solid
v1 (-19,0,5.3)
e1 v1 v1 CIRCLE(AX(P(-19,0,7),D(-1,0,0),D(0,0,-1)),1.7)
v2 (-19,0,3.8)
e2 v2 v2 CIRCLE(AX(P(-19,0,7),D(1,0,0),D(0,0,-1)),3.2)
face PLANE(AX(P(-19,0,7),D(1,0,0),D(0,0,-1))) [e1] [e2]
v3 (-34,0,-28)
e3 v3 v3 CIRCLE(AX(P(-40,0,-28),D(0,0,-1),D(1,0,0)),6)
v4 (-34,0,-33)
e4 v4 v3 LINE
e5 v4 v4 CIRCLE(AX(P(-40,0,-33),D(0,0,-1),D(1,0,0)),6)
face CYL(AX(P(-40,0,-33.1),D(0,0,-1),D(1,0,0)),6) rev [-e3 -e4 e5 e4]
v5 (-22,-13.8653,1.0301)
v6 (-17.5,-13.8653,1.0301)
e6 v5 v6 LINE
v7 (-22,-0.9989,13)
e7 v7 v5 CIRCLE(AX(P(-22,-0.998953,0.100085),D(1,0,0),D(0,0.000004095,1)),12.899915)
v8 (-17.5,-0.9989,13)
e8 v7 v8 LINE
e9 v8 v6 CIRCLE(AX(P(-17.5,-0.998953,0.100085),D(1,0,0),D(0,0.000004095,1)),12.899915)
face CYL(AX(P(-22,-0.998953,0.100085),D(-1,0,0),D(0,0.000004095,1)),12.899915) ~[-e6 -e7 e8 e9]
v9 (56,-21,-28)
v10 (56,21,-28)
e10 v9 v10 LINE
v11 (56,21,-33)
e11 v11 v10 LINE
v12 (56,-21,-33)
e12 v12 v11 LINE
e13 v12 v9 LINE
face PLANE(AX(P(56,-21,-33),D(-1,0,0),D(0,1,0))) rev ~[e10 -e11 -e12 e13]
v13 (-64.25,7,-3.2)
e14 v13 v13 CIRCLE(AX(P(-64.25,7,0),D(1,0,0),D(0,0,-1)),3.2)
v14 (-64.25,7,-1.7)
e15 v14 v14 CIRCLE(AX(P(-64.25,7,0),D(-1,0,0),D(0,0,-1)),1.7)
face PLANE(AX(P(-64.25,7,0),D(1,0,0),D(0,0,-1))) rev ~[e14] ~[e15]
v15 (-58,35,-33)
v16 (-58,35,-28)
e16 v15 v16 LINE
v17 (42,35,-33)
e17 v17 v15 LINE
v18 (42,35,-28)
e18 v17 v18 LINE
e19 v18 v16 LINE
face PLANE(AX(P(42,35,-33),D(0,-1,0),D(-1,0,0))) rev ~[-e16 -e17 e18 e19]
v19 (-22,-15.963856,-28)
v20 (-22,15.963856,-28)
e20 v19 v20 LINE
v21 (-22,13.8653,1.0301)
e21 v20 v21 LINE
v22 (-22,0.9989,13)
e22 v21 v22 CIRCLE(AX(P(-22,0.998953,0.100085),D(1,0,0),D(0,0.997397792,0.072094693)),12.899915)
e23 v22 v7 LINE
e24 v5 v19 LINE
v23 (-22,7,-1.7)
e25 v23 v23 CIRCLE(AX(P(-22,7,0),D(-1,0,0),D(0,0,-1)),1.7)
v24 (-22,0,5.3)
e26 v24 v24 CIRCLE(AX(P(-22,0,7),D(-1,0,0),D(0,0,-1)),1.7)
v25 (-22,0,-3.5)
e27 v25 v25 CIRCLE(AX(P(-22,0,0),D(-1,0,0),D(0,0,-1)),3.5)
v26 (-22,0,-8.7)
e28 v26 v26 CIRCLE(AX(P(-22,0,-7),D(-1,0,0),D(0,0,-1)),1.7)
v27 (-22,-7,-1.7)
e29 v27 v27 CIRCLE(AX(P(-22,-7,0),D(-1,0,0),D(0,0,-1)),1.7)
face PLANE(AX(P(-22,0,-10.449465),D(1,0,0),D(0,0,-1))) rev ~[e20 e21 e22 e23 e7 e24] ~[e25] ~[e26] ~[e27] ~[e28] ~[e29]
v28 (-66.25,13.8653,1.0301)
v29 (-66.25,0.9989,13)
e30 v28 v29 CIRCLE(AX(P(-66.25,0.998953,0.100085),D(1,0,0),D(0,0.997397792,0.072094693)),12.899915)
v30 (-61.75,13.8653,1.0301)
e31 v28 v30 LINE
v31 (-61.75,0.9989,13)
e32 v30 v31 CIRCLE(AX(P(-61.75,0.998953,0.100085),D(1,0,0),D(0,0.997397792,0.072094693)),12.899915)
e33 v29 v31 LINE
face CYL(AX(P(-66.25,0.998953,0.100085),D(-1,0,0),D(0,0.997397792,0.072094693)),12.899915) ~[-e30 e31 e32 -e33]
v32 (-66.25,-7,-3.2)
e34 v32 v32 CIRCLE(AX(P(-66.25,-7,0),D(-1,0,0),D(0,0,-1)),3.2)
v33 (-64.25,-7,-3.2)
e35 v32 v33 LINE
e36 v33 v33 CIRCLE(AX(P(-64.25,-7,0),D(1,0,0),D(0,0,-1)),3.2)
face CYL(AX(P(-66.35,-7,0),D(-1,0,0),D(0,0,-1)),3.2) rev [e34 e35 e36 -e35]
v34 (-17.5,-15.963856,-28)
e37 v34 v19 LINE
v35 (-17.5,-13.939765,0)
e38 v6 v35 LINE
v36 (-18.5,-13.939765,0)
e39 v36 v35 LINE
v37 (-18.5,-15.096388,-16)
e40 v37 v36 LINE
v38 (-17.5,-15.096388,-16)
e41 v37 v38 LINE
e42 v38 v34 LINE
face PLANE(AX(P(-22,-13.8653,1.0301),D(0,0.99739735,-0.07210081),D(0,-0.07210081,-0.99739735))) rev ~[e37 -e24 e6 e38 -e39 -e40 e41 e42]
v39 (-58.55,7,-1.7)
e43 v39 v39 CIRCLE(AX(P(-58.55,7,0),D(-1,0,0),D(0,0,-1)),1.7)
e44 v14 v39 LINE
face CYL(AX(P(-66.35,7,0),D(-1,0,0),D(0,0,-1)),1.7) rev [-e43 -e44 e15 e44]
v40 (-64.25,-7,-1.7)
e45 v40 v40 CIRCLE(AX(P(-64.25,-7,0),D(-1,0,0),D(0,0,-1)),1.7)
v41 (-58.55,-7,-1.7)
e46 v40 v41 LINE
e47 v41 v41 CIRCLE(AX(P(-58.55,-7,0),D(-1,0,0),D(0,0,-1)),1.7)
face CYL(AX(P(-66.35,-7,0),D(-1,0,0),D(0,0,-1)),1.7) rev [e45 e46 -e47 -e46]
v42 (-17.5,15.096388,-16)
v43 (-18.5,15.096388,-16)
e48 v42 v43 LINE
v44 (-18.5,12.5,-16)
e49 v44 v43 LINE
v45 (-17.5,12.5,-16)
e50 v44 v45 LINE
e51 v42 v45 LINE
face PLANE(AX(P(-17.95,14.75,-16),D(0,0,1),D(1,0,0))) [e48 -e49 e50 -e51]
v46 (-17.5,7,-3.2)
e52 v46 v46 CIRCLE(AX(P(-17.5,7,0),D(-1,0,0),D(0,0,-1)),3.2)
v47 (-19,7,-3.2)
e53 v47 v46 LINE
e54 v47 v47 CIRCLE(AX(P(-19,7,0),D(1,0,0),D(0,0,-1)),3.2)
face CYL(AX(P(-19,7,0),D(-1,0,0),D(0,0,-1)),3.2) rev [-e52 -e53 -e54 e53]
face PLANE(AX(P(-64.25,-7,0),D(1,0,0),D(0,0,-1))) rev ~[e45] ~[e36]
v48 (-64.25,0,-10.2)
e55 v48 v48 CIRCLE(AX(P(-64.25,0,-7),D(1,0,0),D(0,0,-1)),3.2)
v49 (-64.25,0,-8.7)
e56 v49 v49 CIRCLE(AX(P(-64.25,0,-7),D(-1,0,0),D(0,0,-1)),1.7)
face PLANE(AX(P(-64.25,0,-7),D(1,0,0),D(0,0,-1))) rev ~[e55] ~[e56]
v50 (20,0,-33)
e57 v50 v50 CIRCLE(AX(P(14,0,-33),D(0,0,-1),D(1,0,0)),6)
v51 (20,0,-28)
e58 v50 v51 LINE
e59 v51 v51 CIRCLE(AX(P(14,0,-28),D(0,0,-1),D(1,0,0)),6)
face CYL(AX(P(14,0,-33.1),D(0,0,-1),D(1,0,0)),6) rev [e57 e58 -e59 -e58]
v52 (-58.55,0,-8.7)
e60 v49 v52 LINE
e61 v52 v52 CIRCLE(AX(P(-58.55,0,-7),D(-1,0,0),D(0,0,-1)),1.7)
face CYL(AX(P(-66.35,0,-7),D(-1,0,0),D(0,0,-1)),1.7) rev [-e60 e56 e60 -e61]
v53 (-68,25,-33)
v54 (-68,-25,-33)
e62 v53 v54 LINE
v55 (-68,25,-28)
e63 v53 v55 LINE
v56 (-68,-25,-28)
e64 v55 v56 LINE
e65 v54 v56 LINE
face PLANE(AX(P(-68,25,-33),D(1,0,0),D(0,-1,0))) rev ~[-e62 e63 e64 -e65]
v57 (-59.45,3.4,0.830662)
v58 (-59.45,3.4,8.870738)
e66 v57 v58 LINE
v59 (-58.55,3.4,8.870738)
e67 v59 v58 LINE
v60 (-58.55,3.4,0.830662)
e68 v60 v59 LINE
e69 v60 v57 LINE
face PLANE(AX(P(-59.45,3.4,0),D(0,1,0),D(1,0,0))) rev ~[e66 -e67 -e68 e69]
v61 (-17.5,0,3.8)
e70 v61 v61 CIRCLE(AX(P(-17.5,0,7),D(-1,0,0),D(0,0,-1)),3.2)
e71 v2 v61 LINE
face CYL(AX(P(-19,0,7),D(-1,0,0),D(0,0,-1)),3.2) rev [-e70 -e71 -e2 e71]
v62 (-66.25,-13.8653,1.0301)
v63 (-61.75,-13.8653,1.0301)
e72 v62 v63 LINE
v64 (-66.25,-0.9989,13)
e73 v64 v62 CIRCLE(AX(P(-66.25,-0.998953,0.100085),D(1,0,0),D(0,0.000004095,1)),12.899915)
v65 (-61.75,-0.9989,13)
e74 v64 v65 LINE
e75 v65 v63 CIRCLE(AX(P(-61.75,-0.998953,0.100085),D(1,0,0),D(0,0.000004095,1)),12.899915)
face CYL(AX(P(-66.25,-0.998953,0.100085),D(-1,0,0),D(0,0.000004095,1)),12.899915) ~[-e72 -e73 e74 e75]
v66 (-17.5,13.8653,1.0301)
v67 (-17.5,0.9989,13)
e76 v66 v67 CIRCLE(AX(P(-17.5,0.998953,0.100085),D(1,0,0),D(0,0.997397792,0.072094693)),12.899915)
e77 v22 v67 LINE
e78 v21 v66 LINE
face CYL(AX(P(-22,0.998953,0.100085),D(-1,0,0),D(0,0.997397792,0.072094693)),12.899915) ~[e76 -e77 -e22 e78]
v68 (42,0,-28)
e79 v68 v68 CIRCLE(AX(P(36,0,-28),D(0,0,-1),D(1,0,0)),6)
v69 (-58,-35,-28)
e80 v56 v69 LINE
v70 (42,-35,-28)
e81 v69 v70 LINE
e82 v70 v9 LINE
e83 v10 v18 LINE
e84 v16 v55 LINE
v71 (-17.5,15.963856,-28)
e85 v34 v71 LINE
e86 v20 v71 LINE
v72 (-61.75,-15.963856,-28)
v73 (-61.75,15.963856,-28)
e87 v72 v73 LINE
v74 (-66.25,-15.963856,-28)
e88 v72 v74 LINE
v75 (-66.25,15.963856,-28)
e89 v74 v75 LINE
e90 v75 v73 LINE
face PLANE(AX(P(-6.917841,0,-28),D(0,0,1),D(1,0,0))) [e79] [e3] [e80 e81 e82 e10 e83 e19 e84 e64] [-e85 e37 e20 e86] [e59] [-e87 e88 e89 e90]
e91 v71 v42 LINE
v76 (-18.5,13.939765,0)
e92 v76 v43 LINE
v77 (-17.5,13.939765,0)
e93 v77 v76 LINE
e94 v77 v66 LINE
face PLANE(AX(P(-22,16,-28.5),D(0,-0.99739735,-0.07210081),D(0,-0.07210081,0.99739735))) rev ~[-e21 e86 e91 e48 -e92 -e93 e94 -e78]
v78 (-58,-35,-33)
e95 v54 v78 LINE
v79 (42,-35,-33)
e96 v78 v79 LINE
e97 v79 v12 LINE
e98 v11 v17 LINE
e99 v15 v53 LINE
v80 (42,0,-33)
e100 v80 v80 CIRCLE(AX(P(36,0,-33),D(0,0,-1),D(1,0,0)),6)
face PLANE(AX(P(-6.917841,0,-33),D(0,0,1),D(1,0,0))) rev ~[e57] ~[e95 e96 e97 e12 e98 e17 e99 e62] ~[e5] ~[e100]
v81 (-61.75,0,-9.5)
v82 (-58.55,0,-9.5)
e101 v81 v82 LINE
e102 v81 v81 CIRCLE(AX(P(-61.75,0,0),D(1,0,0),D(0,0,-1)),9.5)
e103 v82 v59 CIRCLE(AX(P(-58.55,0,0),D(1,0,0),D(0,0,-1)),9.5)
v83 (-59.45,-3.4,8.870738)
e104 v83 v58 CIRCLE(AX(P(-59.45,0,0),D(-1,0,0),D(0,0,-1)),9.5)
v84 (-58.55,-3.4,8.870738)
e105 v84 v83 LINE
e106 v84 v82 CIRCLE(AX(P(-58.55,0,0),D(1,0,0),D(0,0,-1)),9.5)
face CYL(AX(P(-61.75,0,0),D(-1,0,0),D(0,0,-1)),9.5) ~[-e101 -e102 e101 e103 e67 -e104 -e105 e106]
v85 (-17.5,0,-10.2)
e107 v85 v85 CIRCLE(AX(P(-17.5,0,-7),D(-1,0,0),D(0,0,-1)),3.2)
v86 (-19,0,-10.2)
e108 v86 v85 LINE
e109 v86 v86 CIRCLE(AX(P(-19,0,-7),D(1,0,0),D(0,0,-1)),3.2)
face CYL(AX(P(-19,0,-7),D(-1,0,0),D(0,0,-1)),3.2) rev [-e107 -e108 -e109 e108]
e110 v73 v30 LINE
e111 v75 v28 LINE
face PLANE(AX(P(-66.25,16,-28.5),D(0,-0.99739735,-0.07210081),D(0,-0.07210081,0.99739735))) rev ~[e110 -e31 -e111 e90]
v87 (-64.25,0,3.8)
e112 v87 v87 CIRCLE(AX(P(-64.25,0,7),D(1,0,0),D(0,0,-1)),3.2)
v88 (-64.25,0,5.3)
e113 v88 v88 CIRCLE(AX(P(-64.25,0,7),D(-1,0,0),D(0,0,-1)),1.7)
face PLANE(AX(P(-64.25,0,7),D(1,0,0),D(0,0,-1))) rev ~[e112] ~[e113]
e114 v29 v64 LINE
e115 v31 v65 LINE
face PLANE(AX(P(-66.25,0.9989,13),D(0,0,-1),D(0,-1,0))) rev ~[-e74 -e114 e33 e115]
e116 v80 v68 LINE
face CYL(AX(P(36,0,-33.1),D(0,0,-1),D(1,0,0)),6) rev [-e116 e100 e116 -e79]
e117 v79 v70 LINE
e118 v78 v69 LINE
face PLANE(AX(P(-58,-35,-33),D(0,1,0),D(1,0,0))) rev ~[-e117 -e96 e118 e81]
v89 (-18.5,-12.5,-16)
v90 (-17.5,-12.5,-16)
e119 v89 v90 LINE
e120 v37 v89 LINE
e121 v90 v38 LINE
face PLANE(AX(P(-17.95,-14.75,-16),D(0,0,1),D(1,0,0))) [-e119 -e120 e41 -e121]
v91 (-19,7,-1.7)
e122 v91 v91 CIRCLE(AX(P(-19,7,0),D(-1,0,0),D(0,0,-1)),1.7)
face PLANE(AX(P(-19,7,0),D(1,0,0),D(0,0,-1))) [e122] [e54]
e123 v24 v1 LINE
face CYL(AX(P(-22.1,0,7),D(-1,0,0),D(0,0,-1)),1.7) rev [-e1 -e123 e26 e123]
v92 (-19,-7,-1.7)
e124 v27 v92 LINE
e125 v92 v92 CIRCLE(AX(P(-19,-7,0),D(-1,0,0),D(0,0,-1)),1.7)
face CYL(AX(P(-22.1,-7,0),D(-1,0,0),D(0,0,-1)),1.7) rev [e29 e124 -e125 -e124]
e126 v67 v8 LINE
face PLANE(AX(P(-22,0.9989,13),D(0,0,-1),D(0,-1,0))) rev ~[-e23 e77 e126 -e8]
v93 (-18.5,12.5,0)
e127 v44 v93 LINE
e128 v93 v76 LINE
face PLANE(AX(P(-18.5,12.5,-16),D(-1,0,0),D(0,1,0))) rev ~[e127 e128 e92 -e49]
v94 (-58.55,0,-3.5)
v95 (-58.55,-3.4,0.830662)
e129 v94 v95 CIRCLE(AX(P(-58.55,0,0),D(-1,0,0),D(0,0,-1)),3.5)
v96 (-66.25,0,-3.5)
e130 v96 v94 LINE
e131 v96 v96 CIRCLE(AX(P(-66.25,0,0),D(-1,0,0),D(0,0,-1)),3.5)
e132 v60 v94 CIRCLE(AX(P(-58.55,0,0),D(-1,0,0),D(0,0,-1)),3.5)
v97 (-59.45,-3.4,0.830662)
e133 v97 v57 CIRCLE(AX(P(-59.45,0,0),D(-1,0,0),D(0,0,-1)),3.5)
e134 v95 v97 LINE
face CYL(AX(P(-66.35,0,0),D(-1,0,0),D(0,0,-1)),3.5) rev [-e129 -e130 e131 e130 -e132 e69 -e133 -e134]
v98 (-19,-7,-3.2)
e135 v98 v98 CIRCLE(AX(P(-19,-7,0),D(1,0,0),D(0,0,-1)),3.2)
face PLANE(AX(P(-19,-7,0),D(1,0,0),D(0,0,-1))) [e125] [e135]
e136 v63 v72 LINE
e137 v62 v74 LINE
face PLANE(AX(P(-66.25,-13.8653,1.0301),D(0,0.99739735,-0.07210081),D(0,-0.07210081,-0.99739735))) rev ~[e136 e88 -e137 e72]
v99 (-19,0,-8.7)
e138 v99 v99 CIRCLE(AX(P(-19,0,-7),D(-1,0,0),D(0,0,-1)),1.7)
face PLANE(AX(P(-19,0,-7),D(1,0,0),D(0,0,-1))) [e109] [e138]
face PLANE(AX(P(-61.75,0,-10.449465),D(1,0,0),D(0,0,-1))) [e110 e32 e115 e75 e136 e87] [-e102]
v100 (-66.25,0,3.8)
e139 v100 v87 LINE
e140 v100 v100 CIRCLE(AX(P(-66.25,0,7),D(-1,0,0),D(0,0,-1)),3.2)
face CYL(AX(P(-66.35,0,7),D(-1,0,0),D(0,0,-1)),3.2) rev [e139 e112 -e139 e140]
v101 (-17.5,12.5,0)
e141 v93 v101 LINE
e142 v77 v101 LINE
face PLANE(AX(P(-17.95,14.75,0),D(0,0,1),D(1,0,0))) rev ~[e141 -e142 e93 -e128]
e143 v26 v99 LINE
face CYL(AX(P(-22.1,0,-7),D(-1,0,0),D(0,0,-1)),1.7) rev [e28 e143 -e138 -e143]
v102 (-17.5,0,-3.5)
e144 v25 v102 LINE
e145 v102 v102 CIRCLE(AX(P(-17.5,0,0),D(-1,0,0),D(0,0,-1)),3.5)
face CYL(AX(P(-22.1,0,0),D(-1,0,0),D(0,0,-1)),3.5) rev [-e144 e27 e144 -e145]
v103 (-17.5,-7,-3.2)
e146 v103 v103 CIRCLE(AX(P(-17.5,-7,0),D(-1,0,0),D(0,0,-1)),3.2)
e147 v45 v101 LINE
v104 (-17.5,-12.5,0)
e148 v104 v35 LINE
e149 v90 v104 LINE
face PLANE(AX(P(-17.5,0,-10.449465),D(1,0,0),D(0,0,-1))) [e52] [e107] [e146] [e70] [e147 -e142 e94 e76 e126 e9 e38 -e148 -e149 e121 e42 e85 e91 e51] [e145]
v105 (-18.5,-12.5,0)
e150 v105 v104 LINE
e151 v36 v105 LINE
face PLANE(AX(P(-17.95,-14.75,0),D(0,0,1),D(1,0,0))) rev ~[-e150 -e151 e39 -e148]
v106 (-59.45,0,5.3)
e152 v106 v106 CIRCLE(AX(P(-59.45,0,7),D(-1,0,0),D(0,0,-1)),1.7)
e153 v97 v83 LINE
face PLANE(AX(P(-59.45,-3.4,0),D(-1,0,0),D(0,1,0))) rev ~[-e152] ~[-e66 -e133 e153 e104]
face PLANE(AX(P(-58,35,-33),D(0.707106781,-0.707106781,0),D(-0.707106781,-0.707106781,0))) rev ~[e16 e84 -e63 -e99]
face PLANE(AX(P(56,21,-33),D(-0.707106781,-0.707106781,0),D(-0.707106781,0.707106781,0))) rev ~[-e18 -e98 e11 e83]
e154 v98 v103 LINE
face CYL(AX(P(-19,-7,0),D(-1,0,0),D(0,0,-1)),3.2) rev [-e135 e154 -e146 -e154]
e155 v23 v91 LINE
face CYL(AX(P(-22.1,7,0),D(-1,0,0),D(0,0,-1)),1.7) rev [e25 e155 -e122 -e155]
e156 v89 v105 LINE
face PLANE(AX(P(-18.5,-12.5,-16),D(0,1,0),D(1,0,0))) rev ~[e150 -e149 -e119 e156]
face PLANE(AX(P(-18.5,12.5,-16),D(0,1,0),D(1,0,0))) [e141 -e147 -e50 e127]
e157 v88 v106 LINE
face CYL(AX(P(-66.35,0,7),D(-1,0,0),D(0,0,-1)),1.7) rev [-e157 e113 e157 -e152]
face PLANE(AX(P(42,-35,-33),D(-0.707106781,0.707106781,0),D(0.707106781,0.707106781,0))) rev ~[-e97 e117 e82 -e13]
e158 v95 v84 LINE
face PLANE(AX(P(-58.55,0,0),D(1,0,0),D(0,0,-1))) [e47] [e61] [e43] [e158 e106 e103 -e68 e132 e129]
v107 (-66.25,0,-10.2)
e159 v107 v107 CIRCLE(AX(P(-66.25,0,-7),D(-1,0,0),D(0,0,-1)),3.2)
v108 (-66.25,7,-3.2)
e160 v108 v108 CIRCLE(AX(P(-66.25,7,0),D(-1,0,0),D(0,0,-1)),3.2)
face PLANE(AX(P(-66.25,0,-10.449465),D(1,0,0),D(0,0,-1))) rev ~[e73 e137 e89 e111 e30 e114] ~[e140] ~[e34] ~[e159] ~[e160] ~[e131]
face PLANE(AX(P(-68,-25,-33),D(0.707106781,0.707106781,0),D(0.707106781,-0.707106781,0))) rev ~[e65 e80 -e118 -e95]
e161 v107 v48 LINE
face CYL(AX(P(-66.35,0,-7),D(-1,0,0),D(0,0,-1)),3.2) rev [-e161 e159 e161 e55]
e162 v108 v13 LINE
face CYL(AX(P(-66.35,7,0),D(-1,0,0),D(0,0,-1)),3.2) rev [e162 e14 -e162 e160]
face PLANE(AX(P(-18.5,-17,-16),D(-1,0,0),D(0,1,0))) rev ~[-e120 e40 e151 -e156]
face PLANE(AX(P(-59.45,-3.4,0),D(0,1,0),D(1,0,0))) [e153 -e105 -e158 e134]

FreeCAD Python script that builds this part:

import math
import FreeCAD as App
import Part
import Sketcher
from FreeCAD import Vector


def add_polygon(sketch, points):
    """Adds a closed chain of lines whose ends are joined by coincident constraints."""
    first, n = sketch.GeometryCount, len(points)
    for a, b in zip(points, points[1:] + points[:1]):
        sketch.addGeometry(Part.LineSegment(App.Vector(*a, 0), App.Vector(*b, 0)), False)
    for i in range(n):
        sketch.addConstraint(Sketcher.Constraint("Coincident", first + i, 2, first + (i + 1) % n, 1))

doc = App.newDocument("Part")
params = doc.addObject("Spreadsheet::Sheet", "Params")
for row, (alias, value) in enumerate([
    ("sketch1_width", "100 mm"),
    ("sketch1_height", "42 mm"),
    ("sketch1_height2", "50 mm"),
    ("pad1_length", "5 mm"),
    ("sketch2_width", "32 mm"),
    ("pad2_length", "4.5 mm"),
    ("sketch3_diameter", "19 mm"),
    ("pad3_length", "3.2 mm"),
    ("sketch4_width", "32 mm"),
    ("pad4_length", "4.5 mm"),
    ("sketch5_diameter", "7 mm"),
    ("pocket1_length", "4.7 mm"),
    ("sketch6_diameter", "3.4 mm"),
    ("pocket2_length", "4.7 mm"),
    ("sketch7_diameter", "3.4 mm"),
    ("pocket3_length", "4.7 mm"),
    ("sketch8_diameter", "3.4 mm"),
    ("pocket4_length", "4.7 mm"),
    ("sketch9_diameter", "3.4 mm"),
    ("pocket5_length", "4.7 mm"),
    ("sketch10_diameter", "6.4 mm"),
    ("pocket6_length", "1.6 mm"),
    ("sketch11_diameter", "6.4 mm"),
    ("pocket7_length", "1.6 mm"),
    ("sketch12_diameter", "6.4 mm"),
    ("pocket8_length", "1.6 mm"),
    ("sketch13_diameter", "6.4 mm"),
    ("pocket9_length", "1.6 mm"),
    ("sketch14_diameter", "7 mm"),
    ("pocket10_length", "7.9 mm"),
    ("sketch15_diameter", "3.4 mm"),
    ("pocket11_length", "7.9 mm"),
    ("sketch16_diameter", "3.4 mm"),
    ("pocket12_length", "7.9 mm"),
    ("sketch17_diameter", "3.4 mm"),
    ("pocket13_length", "7.9 mm"),
    ("sketch18_diameter", "3.4 mm"),
    ("pocket14_length", "7.9 mm"),
    ("sketch19_diameter", "6.4 mm"),
    ("pocket15_length", "2.1 mm"),
    ("sketch20_diameter", "6.4 mm"),
    ("pocket16_length", "2.1 mm"),
    ("sketch21_diameter", "6.4 mm"),
    ("pocket17_length", "2.1 mm"),
    ("sketch22_diameter", "6.4 mm"),
    ("pocket18_length", "2.1 mm"),
    ("sketch23_width", "1 mm"),
    ("sketch23_height", "6.8 mm"),
    ("pocket19_length", "10 mm"),
    ("sketch24_diameter", "12 mm"),
    ("pocket20_length", "5.2 mm"),
    ("sketch25_diameter", "12 mm"),
    ("pocket21_length", "5.2 mm"),
    ("sketch26_diameter", "12 mm"),
    ("pocket22_length", "5.2 mm"),
    ("sketch27_width", "1.1 mm"),
    ("sketch27_height", "4.5 mm"),
    ("pocket23_length", "16 mm"),
    ("sketch28_width", "1.1 mm"),
    ("sketch28_height", "4.5 mm"),
    ("pocket24_length", "16 mm"),
], start=1):
    params.set(f"A{row}", alias)
    params.set(f"B{row}", "=" + value)
    params.setAlias(f"B{row}", alias)

body = doc.addObject("PartDesign::Body", "Body")

# Sketch on XY plane
sketch1 = body.newObject("Sketcher::SketchObject", "Sketch")
sketch1.AttachmentSupport = (doc.getObject("XY_Plane"), [""])
sketch1.MapMode = "FlatFace"
sketch1.AttachmentOffset = App.Placement(Vector(0, 0, -33), App.Rotation())
add_polygon(sketch1, [(56, -21), (56, 21), (42, 35), (-58, 35), (-68, 25), (-68, -25), (-58, -35), (42, -35)])  # lines 0-7
sketch1.addConstraint(Sketcher.Constraint("Vertical", 0))
sketch1.addConstraint(Sketcher.Constraint("Horizontal", 2))
sketch1.addConstraint(Sketcher.Constraint("Vertical", 4))
sketch1.addConstraint(Sketcher.Constraint("Horizontal", 6))
sketch1.addConstraint(Sketcher.Constraint("Symmetric", 2, 2, 5, 2, -1))
sketch1.addConstraint(Sketcher.Constraint("Perpendicular", 1, 3))
sketch1.addConstraint(Sketcher.Constraint("Perpendicular", 3, 5))
sketch1.addConstraint(Sketcher.Constraint("Perpendicular", 5, 7))
sketch1.addConstraint(Sketcher.Constraint("Vertical", 1, 2, 6, 2))
sketch1.addConstraint(Sketcher.Constraint("Equal", 3, 5))
sketch1.addConstraint(Sketcher.Constraint("DistanceX", 2, 2, 2, 1, 100.0))
sketch1.addConstraint(Sketcher.Constraint("DistanceY", 0, 1, 0, 2, 42.0))
sketch1.addConstraint(Sketcher.Constraint("DistanceY", 4, 2, 4, 1, 50.0))
sketch1.addConstraint(Sketcher.Constraint("DistanceX", -1, 1, 0, 2, 56.0))
sketch1.addConstraint(Sketcher.Constraint("DistanceX", -1, 1, 1, 2, 42.0))
sketch1.setExpression("Constraints[18]", "Params.sketch1_width")
sketch1.setExpression("Constraints[19]", "Params.sketch1_height")
sketch1.setExpression("Constraints[20]", "Params.sketch1_height2")
pad1 = body.newObject("PartDesign::Pad", "Pad")
pad1.Profile = sketch1
pad1.setExpression("Length", "Params.pad1_length")

# Sketch on YZ plane
sketch2 = body.newObject("Sketcher::SketchObject", "Sketch001")
sketch2.AttachmentSupport = (doc.getObject("YZ_Plane"), [""])
sketch2.MapMode = "FlatFace"
sketch2.AttachmentOffset = App.Placement(Vector(0, 0, -22), App.Rotation())
sketch2.addGeometry(Part.LineSegment(Vector(-16, -28.5, 0), Vector(16, -28.5, 0)), False)
sketch2.addGeometry(Part.LineSegment(Vector(16, -28.5, 0), Vector(13.9, 1, 0)), False)
sketch2.addGeometry(Part.ArcOfCircle(Part.Circle(Vector(1, 0.1, 0), Vector(0, 0, 1), 12.9), math.radians(4), math.radians(90)), False)
sketch2.addGeometry(Part.LineSegment(Vector(1, 13, 0), Vector(-1, 13, 0)), False)
sketch2.addGeometry(Part.ArcOfCircle(Part.Circle(Vector(-1, 0.1, 0), Vector(0, 0, 1), 12.9), math.radians(90), math.radians(176)), False)
sketch2.addGeometry(Part.LineSegment(Vector(-13.9, 1, 0), Vector(-16, -28.5, 0)), False)
sketch2.addConstraint(Sketcher.Constraint("Coincident", 0, 2, 1, 1))
sketch2.addConstraint(Sketcher.Constraint("Coincident", 1, 2, 2, 1))
sketch2.addConstraint(Sketcher.Constraint("Coincident", 2, 2, 3, 1))
sketch2.addConstraint(Sketcher.Constraint("Coincident", 3, 2, 4, 1))
sketch2.addConstraint(Sketcher.Constraint("Coincident", 4, 2, 5, 1))
sketch2.addConstraint(Sketcher.Constraint("Coincident", 5, 2, 0, 1))
sketch2.addConstraint(Sketcher.Constraint("Horizontal", 0))
sketch2.addConstraint(Sketcher.Constraint("Horizontal", 3))
sketch2.addConstraint(Sketcher.Constraint("Equal", 2, 4))
sketch2.addConstraint(Sketcher.Constraint("Symmetric", 1, 2, 4, 2, -2))
sketch2.addConstraint(Sketcher.Constraint("Equal", 1, 5))
sketch2.addConstraint(Sketcher.Constraint("DistanceX", 0, 1, 0, 2, 32.0))
sketch2.addConstraint(Sketcher.Constraint("DistanceY", -1, 1, 2, 2, 13.0))
sketch2.addConstraint(Sketcher.Constraint("DistanceY", 0, 2, -1, 1, 28.5))
sketch2.addConstraint(Sketcher.Constraint("DistanceX", 3, 2, 3, 1, 1.9978))
sketch2.addConstraint(Sketcher.Constraint("Radius", 2, 12.899915))
sketch2.addConstraint(Sketcher.Constraint("DistanceX", -1, 1, 1, 2, 13.8653))
sketch2.addConstraint(Sketcher.Constraint("DistanceY", -1, 1, 1, 2, 1.0301))
sketch2.addConstraint(Sketcher.Constraint("DistanceX", -1, 1, 2, 2, 0.9989))
sketch2.setExpression("Constraints[11]", "Params.sketch2_width")
pad2 = body.newObject("PartDesign::Pad", "Pad001")
pad2.Profile = sketch2
pad2.setExpression("Length", "Params.pad2_length")
body2 = doc.addObject("PartDesign::Body", "Body001")

# Sketch on YZ plane
sketch3 = body2.newObject("Sketcher::SketchObject", "Sketch002")
sketch3.AttachmentSupport = (doc.getObject("YZ_Plane001"), [""])
sketch3.MapMode = "FlatFace"
sketch3.AttachmentOffset = App.Placement(Vector(0, 0, -61.75), App.Rotation())
sketch3.addGeometry(Part.Circle(Vector(0, 0, 0), Vector(0, 0, 1), 10), False)
sketch3.addConstraint(Sketcher.Constraint("Coincident", 0, 3, -1, 1))
sketch3.addConstraint(Sketcher.Constraint("Diameter", 0, 19.0))
sketch3.setExpression("Constraints[1]", "Params.sketch3_diameter")
pad3 = body2.newObject("PartDesign::Pad", "Pad002")
pad3.Profile = sketch3
pad3.setExpression("Length", "Params.pad3_length")
body.AllowCompound = True
doc.recompute()

boolean = body.newObject("PartDesign::Boolean", "Boolean")
boolean.Type = "Fuse"
boolean.addObjects([body2])

# Sketch on YZ plane
sketch4 = body.newObject("Sketcher::SketchObject", "Sketch003")
sketch4.AttachmentSupport = (doc.getObject("YZ_Plane"), [""])
sketch4.MapMode = "FlatFace"
sketch4.AttachmentOffset = App.Placement(Vector(0, 0, -66.25), App.Rotation())
sketch4.addGeometry(Part.LineSegment(Vector(-16, -28.5, 0), Vector(16, -28.5, 0)), False)
sketch4.addGeometry(Part.LineSegment(Vector(16, -28.5, 0), Vector(13.9, 1, 0)), False)
sketch4.addGeometry(Part.ArcOfCircle(Part.Circle(Vector(1, 0.1, 0), Vector(0, 0, 1), 12.9), math.radians(4), math.radians(90)), False)
sketch4.addGeometry(Part.LineSegment(Vector(1, 13, 0), Vector(-1, 13, 0)), False)
sketch4.addGeometry(Part.ArcOfCircle(Part.Circle(Vector(-1, 0.1, 0), Vector(0, 0, 1), 12.9), math.radians(90), math.radians(176)), False)
sketch4.addGeometry(Part.LineSegment(Vector(-13.9, 1, 0), Vector(-16, -28.5, 0)), False)
sketch4.addConstraint(Sketcher.Constraint("Coincident", 0, 2, 1, 1))
sketch4.addConstraint(Sketcher.Constraint("Coincident", 1, 2, 2, 1))
sketch4.addConstraint(Sketcher.Constraint("Coincident", 2, 2, 3, 1))
sketch4.addConstraint(Sketcher.Constraint("Coincident", 3, 2, 4, 1))
sketch4.addConstraint(Sketcher.Constraint("Coincident", 4, 2, 5, 1))
sketch4.addConstraint(Sketcher.Constraint("Coincident", 5, 2, 0, 1))
sketch4.addConstraint(Sketcher.Constraint("Horizontal", 0))
sketch4.addConstraint(Sketcher.Constraint("Horizontal", 3))
sketch4.addConstraint(Sketcher.Constraint("Equal", 2, 4))
sketch4.addConstraint(Sketcher.Constraint("Symmetric", 1, 2, 4, 2, -2))
sketch4.addConstraint(Sketcher.Constraint("Equal", 1, 5))
sketch4.addConstraint(Sketcher.Constraint("DistanceX", 0, 1, 0, 2, 32.0))
sketch4.addConstraint(Sketcher.Constraint("DistanceY", -1, 1, 2, 2, 13.0))
sketch4.addConstraint(Sketcher.Constraint("DistanceY", 0, 2, -1, 1, 28.5))
sketch4.addConstraint(Sketcher.Constraint("DistanceX", 3, 2, 3, 1, 1.9978))
sketch4.addConstraint(Sketcher.Constraint("Radius", 2, 12.899915))
sketch4.addConstraint(Sketcher.Constraint("DistanceX", -1, 1, 1, 2, 13.8653))
sketch4.addConstraint(Sketcher.Constraint("DistanceY", -1, 1, 1, 2, 1.0301))
sketch4.addConstraint(Sketcher.Constraint("DistanceX", -1, 1, 2, 2, 0.9989))
sketch4.setExpression("Constraints[11]", "Params.sketch4_width")
pad4 = body.newObject("PartDesign::Pad", "Pad003")
pad4.Profile = sketch4
pad4.setExpression("Length", "Params.pad4_length")

# Sketch on YZ plane
sketch5 = body.newObject("Sketcher::SketchObject", "Sketch004")
sketch5.AttachmentSupport = (doc.getObject("YZ_Plane"), [""])
sketch5.MapMode = "FlatFace"
sketch5.AttachmentOffset = App.Placement(Vector(0, 0, -22.1), App.Rotation())
sketch5.addGeometry(Part.Circle(Vector(0, 0, 0), Vector(0, 0, 1), 3.5), False)
sketch5.addConstraint(Sketcher.Constraint("Coincident", 0, 3, -1, 1))
sketch5.addConstraint(Sketcher.Constraint("Diameter", 0, 7.0))
sketch5.setExpression("Constraints[1]", "Params.sketch5_diameter")
pocket1 = body.newObject("PartDesign::Pocket", "Pocket")
pocket1.Profile = sketch5
pocket1.setExpression("Length", "Params.pocket1_length")
pocket1.Reversed = True

# Sketch on YZ plane
sketch6 = body.newObject("Sketcher::SketchObject", "Sketch005")
sketch6.AttachmentSupport = (doc.getObject("YZ_Plane"), [""])
sketch6.MapMode = "FlatFace"
sketch6.AttachmentOffset = App.Placement(Vector(0, 0, -22.1), App.Rotation())
sketch6.addGeometry(Part.Circle(Vector(7, 0, 0), Vector(0, 0, 1), 1.7), False)
sketch6.addConstraint(Sketcher.Constraint("PointOnObject", 0, 3, -1))
sketch6.addConstraint(Sketcher.Constraint("Diameter", 0, 3.4))
sketch6.addConstraint(Sketcher.Constraint("DistanceX", -1, 1, 0, 3, 7.0))
sketch6.setExpression("Constraints[1]", "Params.sketch6_diameter")
pocket2 = body.newObject("PartDesign::Pocket", "Pocket001")
pocket2.Profile = sketch6
pocket2.setExpression("Length", "Params.pocket2_length")
pocket2.Reversed = True

# Sketch on YZ plane
sketch7 = body.newObject("Sketcher::SketchObject", "Sketch006")
sketch7.AttachmentSupport = (doc.getObject("YZ_Plane"), [""])
sketch7.MapMode = "FlatFace"
sketch7.AttachmentOffset = App.Placement(Vector(0, 0, -22.1), App.Rotation())
sketch7.addGeometry(Part.Circle(Vector(0, 7, 0), Vector(0, 0, 1), 1.7), False)
sketch7.addConstraint(Sketcher.Constraint("PointOnObject", 0, 3, -2))
sketch7.addConstraint(Sketcher.Constraint("Diameter", 0, 3.4))
sketch7.addConstraint(Sketcher.Constraint("DistanceY", -1, 1, 0, 3, 7.0))
sketch7.setExpression("Constraints[1]", "Params.sketch7_diameter")
pocket3 = body.newObject("PartDesign::Pocket", "Pocket002")
pocket3.Profile = sketch7
pocket3.setExpression("Length", "Params.pocket3_length")
pocket3.Reversed = True

# Sketch on YZ plane
sketch8 = body.newObject("Sketcher::SketchObject", "Sketch007")
sketch8.AttachmentSupport = (doc.getObject("YZ_Plane"), [""])
sketch8.MapMode = "FlatFace"
sketch8.AttachmentOffset = App.Placement(Vector(0, 0, -22.1), App.Rotation())
sketch8.addGeometry(Part.Circle(Vector(-7, 0, 0), Vector(0, 0, 1), 1.7), False)
sketch8.addConstraint(Sketcher.Constraint("PointOnObject", 0, 3, -1))
sketch8.addConstraint(Sketcher.Constraint("Diameter", 0, 3.4))
sketch8.addConstraint(Sketcher.Constraint("DistanceX", 0, 3, -1, 1, 7.0))
sketch8.setExpression("Constraints[1]", "Params.sketch8_diameter")
pocket4 = body.newObject("PartDesign::Pocket", "Pocket003")
pocket4.Profile = sketch8
pocket4.setExpression("Length", "Params.pocket4_length")
pocket4.Reversed = True

# Sketch on YZ plane
sketch9 = body.newObject("Sketcher::SketchObject", "Sketch008")
sketch9.AttachmentSupport = (doc.getObject("YZ_Plane"), [""])
sketch9.MapMode = "FlatFace"
sketch9.AttachmentOffset = App.Placement(Vector(0, 0, -22.1), App.Rotation())
sketch9.addGeometry(Part.Circle(Vector(0, -7, 0), Vector(0, 0, 1), 1.7), False)
sketch9.addConstraint(Sketcher.Constraint("PointOnObject", 0, 3, -2))
sketch9.addConstraint(Sketcher.Constraint("Diameter", 0, 3.4))
sketch9.addConstraint(Sketcher.Constraint("DistanceY", 0, 3, -1, 1, 7.0))
sketch9.setExpression("Constraints[1]", "Params.sketch9_diameter")
pocket5 = body.newObject("PartDesign::Pocket", "Pocket004")
pocket5.Profile = sketch9
pocket5.setExpression("Length", "Params.pocket5_length")
pocket5.Reversed = True

# Sketch on YZ plane
sketch10 = body.newObject("Sketcher::SketchObject", "Sketch009")
sketch10.AttachmentSupport = (doc.getObject("YZ_Plane"), [""])
sketch10.MapMode = "FlatFace"
sketch10.AttachmentOffset = App.Placement(Vector(0, 0, -19), App.Rotation())
sketch10.addGeometry(Part.Circle(Vector(7, 0, 0), Vector(0, 0, 1), 3.2), False)
sketch10.addConstraint(Sketcher.Constraint("PointOnObject", 0, 3, -1))
sketch10.addConstraint(Sketcher.Constraint("Diameter", 0, 6.4))
sketch10.addConstraint(Sketcher.Constraint("DistanceX", -1, 1, 0, 3, 7.0))
sketch10.setExpression("Constraints[1]", "Params.sketch10_diameter")
pocket6 = body.newObject("PartDesign::Pocket", "Pocket005")
pocket6.Profile = sketch10
pocket6.setExpression("Length", "Params.pocket6_length")
pocket6.Reversed = True

# Sketch on YZ plane
sketch11 = body.newObject("Sketcher::SketchObject", "Sketch010")
sketch11.AttachmentSupport = (doc.getObject("YZ_Plane"), [""])
sketch11.MapMode = "FlatFace"
sketch11.AttachmentOffset = App.Placement(Vector(0, 0, -19), App.Rotation())
sketch11.addGeometry(Part.Circle(Vector(0, 7, 0), Vector(0, 0, 1), 3.2), False)
sketch11.addConstraint(Sketcher.Constraint("PointOnObject", 0, 3, -2))
sketch11.addConstraint(Sketcher.Constraint("Diameter", 0, 6.4))
sketch11.addConstraint(Sketcher.Constraint("DistanceY", -1, 1, 0, 3, 7.0))
sketch11.setExpression("Constraints[1]", "Params.sketch11_diameter")
pocket7 = body.newObject("PartDesign::Pocket", "Pocket006")
pocket7.Profile = sketch11
pocket7.setExpression("Length", "Params.pocket7_length")
pocket7.Reversed = True

# Sketch on YZ plane
sketch12 = body.newObject("Sketcher::SketchObject", "Sketch011")
sketch12.AttachmentSupport = (doc.getObject("YZ_Plane"), [""])
sketch12.MapMode = "FlatFace"
sketch12.AttachmentOffset = App.Placement(Vector(0, 0, -19), App.Rotation())
sketch12.addGeometry(Part.Circle(Vector(-7, 0, 0), Vector(0, 0, 1), 3.2), False)
sketch12.addConstraint(Sketcher.Constraint("PointOnObject", 0, 3, -1))
sketch12.addConstraint(Sketcher.Constraint("Diameter", 0, 6.4))
sketch12.addConstraint(Sketcher.Constraint("DistanceX", 0, 3, -1, 1, 7.0))
sketch12.setExpression("Constraints[1]", "Params.sketch12_diameter")
pocket8 = body.newObject("PartDesign::Pocket", "Pocket007")
pocket8.Profile = sketch12
pocket8.setExpression("Length", "Params.pocket8_length")
pocket8.Reversed = True

# Sketch on YZ plane
sketch13 = body.newObject("Sketcher::SketchObject", "Sketch012")
sketch13.AttachmentSupport = (doc.getObject("YZ_Plane"), [""])
sketch13.MapMode = "FlatFace"
sketch13.AttachmentOffset = App.Placement(Vector(0, 0, -19), App.Rotation())
sketch13.addGeometry(Part.Circle(Vector(0, -7, 0), Vector(0, 0, 1), 3.2), False)
sketch13.addConstraint(Sketcher.Constraint("PointOnObject", 0, 3, -2))
sketch13.addConstraint(Sketcher.Constraint("Diameter", 0, 6.4))
sketch13.addConstraint(Sketcher.Constraint("DistanceY", 0, 3, -1, 1, 7.0))
sketch13.setExpression("Constraints[1]", "Params.sketch13_diameter")
pocket9 = body.newObject("PartDesign::Pocket", "Pocket008")
pocket9.Profile = sketch13
pocket9.setExpression("Length", "Params.pocket9_length")
pocket9.Reversed = True

# Sketch on YZ plane
sketch14 = body.newObject("Sketcher::SketchObject", "Sketch013")
sketch14.AttachmentSupport = (doc.getObject("YZ_Plane"), [""])
sketch14.MapMode = "FlatFace"
sketch14.AttachmentOffset = App.Placement(Vector(0, 0, -66.35), App.Rotation())
sketch14.addGeometry(Part.Circle(Vector(0, 0, 0), Vector(0, 0, 1), 3.5), False)
sketch14.addConstraint(Sketcher.Constraint("Coincident", 0, 3, -1, 1))
sketch14.addConstraint(Sketcher.Constraint("Diameter", 0, 7.0))
sketch14.setExpression("Constraints[1]", "Params.sketch14_diameter")
pocket10 = body.newObject("PartDesign::Pocket", "Pocket009")
pocket10.Profile = sketch14
pocket10.setExpression("Length", "Params.pocket10_length")
pocket10.Reversed = True

# Sketch on YZ plane
sketch15 = body.newObject("Sketcher::SketchObject", "Sketch014")
sketch15.AttachmentSupport = (doc.getObject("YZ_Plane"), [""])
sketch15.MapMode = "FlatFace"
sketch15.AttachmentOffset = App.Placement(Vector(0, 0, -66.35), App.Rotation())
sketch15.addGeometry(Part.Circle(Vector(7, 0, 0), Vector(0, 0, 1), 1.7), False)
sketch15.addConstraint(Sketcher.Constraint("PointOnObject", 0, 3, -1))
sketch15.addConstraint(Sketcher.Constraint("Diameter", 0, 3.4))
sketch15.addConstraint(Sketcher.Constraint("DistanceX", -1, 1, 0, 3, 7.0))
sketch15.setExpression("Constraints[1]", "Params.sketch15_diameter")
pocket11 = body.newObject("PartDesign::Pocket", "Pocket010")
pocket11.Profile = sketch15
pocket11.setExpression("Length", "Params.pocket11_length")
pocket11.Reversed = True

# Sketch on YZ plane
sketch16 = body.newObject("Sketcher::SketchObject", "Sketch015")
sketch16.AttachmentSupport = (doc.getObject("YZ_Plane"), [""])
sketch16.MapMode = "FlatFace"
sketch16.AttachmentOffset = App.Placement(Vector(0, 0, -66.35), App.Rotation())
sketch16.addGeometry(Part.Circle(Vector(0, 7, 0), Vector(0, 0, 1), 1.7), False)
sketch16.addConstraint(Sketcher.Constraint("PointOnObject", 0, 3, -2))
sketch16.addConstraint(Sketcher.Constraint("Diameter", 0, 3.4))
sketch16.addConstraint(Sketcher.Constraint("DistanceY", -1, 1, 0, 3, 7.0))
sketch16.setExpression("Constraints[1]", "Params.sketch16_diameter")
pocket12 = body.newObject("PartDesign::Pocket", "Pocket011")
pocket12.Profile = sketch16
pocket12.setExpression("Length", "Params.pocket12_length")
pocket12.Reversed = True

# Sketch on YZ plane
sketch17 = body.newObject("Sketcher::SketchObject", "Sketch016")
sketch17.AttachmentSupport = (doc.getObject("YZ_Plane"), [""])
sketch17.MapMode = "FlatFace"
sketch17.AttachmentOffset = App.Placement(Vector(0, 0, -66.35), App.Rotation())
sketch17.addGeometry(Part.Circle(Vector(-7, 0, 0), Vector(0, 0, 1), 1.7), False)
sketch17.addConstraint(Sketcher.Constraint("PointOnObject", 0, 3, -1))
sketch17.addConstraint(Sketcher.Constraint("Diameter", 0, 3.4))
sketch17.addConstraint(Sketcher.Constraint("DistanceX", 0, 3, -1, 1, 7.0))
sketch17.setExpression("Constraints[1]", "Params.sketch17_diameter")
pocket13 = body.newObject("PartDesign::Pocket", "Pocket012")
pocket13.Profile = sketch17
pocket13.setExpression("Length", "Params.pocket13_length")
pocket13.Reversed = True

# Sketch on YZ plane
sketch18 = body.newObject("Sketcher::SketchObject", "Sketch017")
sketch18.AttachmentSupport = (doc.getObject("YZ_Plane"), [""])
sketch18.MapMode = "FlatFace"
sketch18.AttachmentOffset = App.Placement(Vector(0, 0, -66.35), App.Rotation())
sketch18.addGeometry(Part.Circle(Vector(0, -7, 0), Vector(0, 0, 1), 1.7), False)
sketch18.addConstraint(Sketcher.Constraint("PointOnObject", 0, 3, -2))
sketch18.addConstraint(Sketcher.Constraint("Diameter", 0, 3.4))
sketch18.addConstraint(Sketcher.Constraint("DistanceY", 0, 3, -1, 1, 7.0))
sketch18.setExpression("Constraints[1]", "Params.sketch18_diameter")
pocket14 = body.newObject("PartDesign::Pocket", "Pocket013")
pocket14.Profile = sketch18
pocket14.setExpression("Length", "Params.pocket14_length")
pocket14.Reversed = True

# Sketch on YZ plane
sketch19 = body.newObject("Sketcher::SketchObject", "Sketch018")
sketch19.AttachmentSupport = (doc.getObject("YZ_Plane"), [""])
sketch19.MapMode = "FlatFace"
sketch19.AttachmentOffset = App.Placement(Vector(0, 0, -66.35), App.Rotation())
sketch19.addGeometry(Part.Circle(Vector(7, 0, 0), Vector(0, 0, 1), 3.2), False)
sketch19.addConstraint(Sketcher.Constraint("PointOnObject", 0, 3, -1))
sketch19.addConstraint(Sketcher.Constraint("Diameter", 0, 6.4))
sketch19.addConstraint(Sketcher.Constraint("DistanceX", -1, 1, 0, 3, 7.0))
sketch19.setExpression("Constraints[1]", "Params.sketch19_diameter")
pocket15 = body.newObject("PartDesign::Pocket", "Pocket014")
pocket15.Profile = sketch19
pocket15.setExpression("Length", "Params.pocket15_length")
pocket15.Reversed = True

# Sketch on YZ plane
sketch20 = body.newObject("Sketcher::SketchObject", "Sketch019")
sketch20.AttachmentSupport = (doc.getObject("YZ_Plane"), [""])
sketch20.MapMode = "FlatFace"
sketch20.AttachmentOffset = App.Placement(Vector(0, 0, -66.35), App.Rotation())
sketch20.addGeometry(Part.Circle(Vector(0, 7, 0), Vector(0, 0, 1), 3.2), False)
sketch20.addConstraint(Sketcher.Constraint("PointOnObject", 0, 3, -2))
sketch20.addConstraint(Sketcher.Constraint("Diameter", 0, 6.4))
sketch20.addConstraint(Sketcher.Constraint("DistanceY", -1, 1, 0, 3, 7.0))
sketch20.setExpression("Constraints[1]", "Params.sketch20_diameter")
pocket16 = body.newObject("PartDesign::Pocket", "Pocket015")
pocket16.Profile = sketch20
pocket16.setExpression("Length", "Params.pocket16_length")
pocket16.Reversed = True

# Sketch on YZ plane
sketch21 = body.newObject("Sketcher::SketchObject", "Sketch020")
sketch21.AttachmentSupport = (doc.getObject("YZ_Plane"), [""])
sketch21.MapMode = "FlatFace"
sketch21.AttachmentOffset = App.Placement(Vector(0, 0, -66.35), App.Rotation())
sketch21.addGeometry(Part.Circle(Vector(-7, 0, 0), Vector(0, 0, 1), 3.2), False)
sketch21.addConstraint(Sketcher.Constraint("PointOnObject", 0, 3, -1))
sketch21.addConstraint(Sketcher.Constraint("Diameter", 0, 6.4))
sketch21.addConstraint(Sketcher.Constraint("DistanceX", 0, 3, -1, 1, 7.0))
sketch21.setExpression("Constraints[1]", "Params.sketch21_diameter")
pocket17 = body.newObject("PartDesign::Pocket", "Pocket016")
pocket17.Profile = sketch21
pocket17.setExpression("Length", "Params.pocket17_length")
pocket17.Reversed = True

# Sketch on YZ plane
sketch22 = body.newObject("Sketcher::SketchObject", "Sketch021")
sketch22.AttachmentSupport = (doc.getObject("YZ_Plane"), [""])
sketch22.MapMode = "FlatFace"
sketch22.AttachmentOffset = App.Placement(Vector(0, 0, -66.35), App.Rotation())
sketch22.addGeometry(Part.Circle(Vector(0, -7, 0), Vector(0, 0, 1), 3.2), False)
sketch22.addConstraint(Sketcher.Constraint("PointOnObject", 0, 3, -2))
sketch22.addConstraint(Sketcher.Constraint("Diameter", 0, 6.4))
sketch22.addConstraint(Sketcher.Constraint("DistanceY", 0, 3, -1, 1, 7.0))
sketch22.setExpression("Constraints[1]", "Params.sketch22_diameter")
pocket18 = body.newObject("PartDesign::Pocket", "Pocket017")
pocket18.Profile = sketch22
pocket18.setExpression("Length", "Params.pocket18_length")
pocket18.Reversed = True

# Sketch on XY plane
sketch23 = body.newObject("Sketcher::SketchObject", "Sketch022")
sketch23.AttachmentSupport = (doc.getObject("XY_Plane"), [""])
sketch23.MapMode = "FlatFace"
add_polygon(sketch23, [(-59.5, 3.4), (-59.5, -3.4), (-58.5, -3.4), (-58.5, 3.4)])  # lines 0-3
sketch23.addConstraint(Sketcher.Constraint("Vertical", 0))
sketch23.addConstraint(Sketcher.Constraint("Horizontal", 1))
sketch23.addConstraint(Sketcher.Constraint("Vertical", 2))
sketch23.addConstraint(Sketcher.Constraint("Horizontal", 3))
sketch23.addConstraint(Sketcher.Constraint("DistanceX", 1, 1, 1, 2, 1.0))
sketch23.addConstraint(Sketcher.Constraint("DistanceY", 0, 2, 0, 1, 6.8))
sketch23.addConstraint(Sketcher.Constraint("DistanceY", 0, 2, -1, 1, 3.4))
sketch23.addConstraint(Sketcher.Constraint("DistanceX", 0, 2, -1, 1, 59.45))
sketch23.setExpression("Constraints[8]", "Params.sketch23_width")
sketch23.setExpression("Constraints[9]", "Params.sketch23_height")
pocket19 = body.newObject("PartDesign::Pocket", "Pocket018")
pocket19.Profile = sketch23
pocket19.setExpression("Length", "Params.pocket19_length")
pocket19.Reversed = True

# Sketch on XY plane
sketch24 = body.newObject("Sketcher::SketchObject", "Sketch023")
sketch24.AttachmentSupport = (doc.getObject("XY_Plane"), [""])
sketch24.MapMode = "FlatFace"
sketch24.AttachmentOffset = App.Placement(Vector(0, 0, -33.1), App.Rotation())
sketch24.addGeometry(Part.Circle(Vector(-40, 0, 0), Vector(0, 0, 1), 6), False)
sketch24.addConstraint(Sketcher.Constraint("PointOnObject", 0, 3, -1))
sketch24.addConstraint(Sketcher.Constraint("Diameter", 0, 12.0))
sketch24.addConstraint(Sketcher.Constraint("DistanceX", 0, 3, -1, 1, 40.0))
sketch24.setExpression("Constraints[1]", "Params.sketch24_diameter")
pocket20 = body.newObject("PartDesign::Pocket", "Pocket019")
pocket20.Profile = sketch24
pocket20.setExpression("Length", "Params.pocket20_length")
pocket20.Reversed = True

# Sketch on XY plane
sketch25 = body.newObject("Sketcher::SketchObject", "Sketch024")
sketch25.AttachmentSupport = (doc.getObject("XY_Plane"), [""])
sketch25.MapMode = "FlatFace"
sketch25.AttachmentOffset = App.Placement(Vector(0, 0, -33.1), App.Rotation())
sketch25.addGeometry(Part.Circle(Vector(14, 0, 0), Vector(0, 0, 1), 6), False)
sketch25.addConstraint(Sketcher.Constraint("PointOnObject", 0, 3, -1))
sketch25.addConstraint(Sketcher.Constraint("Diameter", 0, 12.0))
sketch25.addConstraint(Sketcher.Constraint("DistanceX", -1, 1, 0, 3, 14.0))
sketch25.setExpression("Constraints[1]", "Params.sketch25_diameter")
pocket21 = body.newObject("PartDesign::Pocket", "Pocket020")
pocket21.Profile = sketch25
pocket21.setExpression("Length", "Params.pocket21_length")
pocket21.Reversed = True

# Sketch on XY plane
sketch26 = body.newObject("Sketcher::SketchObject", "Sketch025")
sketch26.AttachmentSupport = (doc.getObject("XY_Plane"), [""])
sketch26.MapMode = "FlatFace"
sketch26.AttachmentOffset = App.Placement(Vector(0, 0, -33.1), App.Rotation())
sketch26.addGeometry(Part.Circle(Vector(36, 0, 0), Vector(0, 0, 1), 6), False)
sketch26.addConstraint(Sketcher.Constraint("PointOnObject", 0, 3, -1))
sketch26.addConstraint(Sketcher.Constraint("Diameter", 0, 12.0))
sketch26.addConstraint(Sketcher.Constraint("DistanceX", -1, 1, 0, 3, 36.0))
sketch26.setExpression("Constraints[1]", "Params.sketch26_diameter")
pocket22 = body.newObject("PartDesign::Pocket", "Pocket021")
pocket22.Profile = sketch26
pocket22.setExpression("Length", "Params.pocket22_length")
pocket22.Reversed = True

# Sketch on XY plane
sketch27 = body.newObject("Sketcher::SketchObject", "Sketch026")
sketch27.AttachmentSupport = (doc.getObject("XY_Plane"), [""])
sketch27.MapMode = "FlatFace"
sketch27.AttachmentOffset = App.Placement(Vector(0, 0, -16), App.Rotation())
add_polygon(sketch27, [(-18.5, 17), (-18.5, 12.5), (-17.4, 12.5), (-17.4, 17)])  # lines 0-3
sketch27.addConstraint(Sketcher.Constraint("Vertical", 0))
sketch27.addConstraint(Sketcher.Constraint("Horizontal", 1))
sketch27.addConstraint(Sketcher.Constraint("Vertical", 2))
sketch27.addConstraint(Sketcher.Constraint("Horizontal", 3))
sketch27.addConstraint(Sketcher.Constraint("DistanceX", 1, 1, 1, 2, 1.1))
sketch27.addConstraint(Sketcher.Constraint("DistanceY", 0, 2, 0, 1, 4.5))
sketch27.addConstraint(Sketcher.Constraint("DistanceY", -1, 1, 2, 2, 17.0))
sketch27.addConstraint(Sketcher.Constraint("DistanceX", 0, 2, -1, 1, 18.5))
sketch27.setExpression("Constraints[8]", "Params.sketch27_width")
sketch27.setExpression("Constraints[9]", "Params.sketch27_height")
pocket23 = body.newObject("PartDesign::Pocket", "Pocket022")
pocket23.Profile = sketch27
pocket23.setExpression("Length", "Params.pocket23_length")
pocket23.Reversed = True

# Sketch on XY plane
sketch28 = body.newObject("Sketcher::SketchObject", "Sketch027")
sketch28.AttachmentSupport = (doc.getObject("XY_Plane"), [""])
sketch28.MapMode = "FlatFace"
sketch28.AttachmentOffset = App.Placement(Vector(0, 0, -16), App.Rotation())
add_polygon(sketch28, [(-18.5, -12.5), (-18.5, -17), (-17.4, -17), (-17.4, -12.5)])  # lines 0-3
sketch28.addConstraint(Sketcher.Constraint("Vertical", 0))
sketch28.addConstraint(Sketcher.Constraint("Horizontal", 1))
sketch28.addConstraint(Sketcher.Constraint("Vertical", 2))
sketch28.addConstraint(Sketcher.Constraint("Horizontal", 3))
sketch28.addConstraint(Sketcher.Constraint("DistanceX", 1, 1, 1, 2, 1.1))
sketch28.addConstraint(Sketcher.Constraint("DistanceY", 0, 2, 0, 1, 4.5))
sketch28.addConstraint(Sketcher.Constraint("DistanceY", 0, 2, -1, 1, 17.0))
sketch28.addConstraint(Sketcher.Constraint("DistanceX", 0, 2, -1, 1, 18.5))
sketch28.setExpression("Constraints[8]", "Params.sketch28_width")
sketch28.setExpression("Constraints[9]", "Params.sketch28_height")
pocket24 = body.newObject("PartDesign::Pocket", "Pocket023")
pocket24.Profile = sketch28
pocket24.setExpression("Length", "Params.pocket24_length")
pocket24.Reversed = True

doc.recompute()
